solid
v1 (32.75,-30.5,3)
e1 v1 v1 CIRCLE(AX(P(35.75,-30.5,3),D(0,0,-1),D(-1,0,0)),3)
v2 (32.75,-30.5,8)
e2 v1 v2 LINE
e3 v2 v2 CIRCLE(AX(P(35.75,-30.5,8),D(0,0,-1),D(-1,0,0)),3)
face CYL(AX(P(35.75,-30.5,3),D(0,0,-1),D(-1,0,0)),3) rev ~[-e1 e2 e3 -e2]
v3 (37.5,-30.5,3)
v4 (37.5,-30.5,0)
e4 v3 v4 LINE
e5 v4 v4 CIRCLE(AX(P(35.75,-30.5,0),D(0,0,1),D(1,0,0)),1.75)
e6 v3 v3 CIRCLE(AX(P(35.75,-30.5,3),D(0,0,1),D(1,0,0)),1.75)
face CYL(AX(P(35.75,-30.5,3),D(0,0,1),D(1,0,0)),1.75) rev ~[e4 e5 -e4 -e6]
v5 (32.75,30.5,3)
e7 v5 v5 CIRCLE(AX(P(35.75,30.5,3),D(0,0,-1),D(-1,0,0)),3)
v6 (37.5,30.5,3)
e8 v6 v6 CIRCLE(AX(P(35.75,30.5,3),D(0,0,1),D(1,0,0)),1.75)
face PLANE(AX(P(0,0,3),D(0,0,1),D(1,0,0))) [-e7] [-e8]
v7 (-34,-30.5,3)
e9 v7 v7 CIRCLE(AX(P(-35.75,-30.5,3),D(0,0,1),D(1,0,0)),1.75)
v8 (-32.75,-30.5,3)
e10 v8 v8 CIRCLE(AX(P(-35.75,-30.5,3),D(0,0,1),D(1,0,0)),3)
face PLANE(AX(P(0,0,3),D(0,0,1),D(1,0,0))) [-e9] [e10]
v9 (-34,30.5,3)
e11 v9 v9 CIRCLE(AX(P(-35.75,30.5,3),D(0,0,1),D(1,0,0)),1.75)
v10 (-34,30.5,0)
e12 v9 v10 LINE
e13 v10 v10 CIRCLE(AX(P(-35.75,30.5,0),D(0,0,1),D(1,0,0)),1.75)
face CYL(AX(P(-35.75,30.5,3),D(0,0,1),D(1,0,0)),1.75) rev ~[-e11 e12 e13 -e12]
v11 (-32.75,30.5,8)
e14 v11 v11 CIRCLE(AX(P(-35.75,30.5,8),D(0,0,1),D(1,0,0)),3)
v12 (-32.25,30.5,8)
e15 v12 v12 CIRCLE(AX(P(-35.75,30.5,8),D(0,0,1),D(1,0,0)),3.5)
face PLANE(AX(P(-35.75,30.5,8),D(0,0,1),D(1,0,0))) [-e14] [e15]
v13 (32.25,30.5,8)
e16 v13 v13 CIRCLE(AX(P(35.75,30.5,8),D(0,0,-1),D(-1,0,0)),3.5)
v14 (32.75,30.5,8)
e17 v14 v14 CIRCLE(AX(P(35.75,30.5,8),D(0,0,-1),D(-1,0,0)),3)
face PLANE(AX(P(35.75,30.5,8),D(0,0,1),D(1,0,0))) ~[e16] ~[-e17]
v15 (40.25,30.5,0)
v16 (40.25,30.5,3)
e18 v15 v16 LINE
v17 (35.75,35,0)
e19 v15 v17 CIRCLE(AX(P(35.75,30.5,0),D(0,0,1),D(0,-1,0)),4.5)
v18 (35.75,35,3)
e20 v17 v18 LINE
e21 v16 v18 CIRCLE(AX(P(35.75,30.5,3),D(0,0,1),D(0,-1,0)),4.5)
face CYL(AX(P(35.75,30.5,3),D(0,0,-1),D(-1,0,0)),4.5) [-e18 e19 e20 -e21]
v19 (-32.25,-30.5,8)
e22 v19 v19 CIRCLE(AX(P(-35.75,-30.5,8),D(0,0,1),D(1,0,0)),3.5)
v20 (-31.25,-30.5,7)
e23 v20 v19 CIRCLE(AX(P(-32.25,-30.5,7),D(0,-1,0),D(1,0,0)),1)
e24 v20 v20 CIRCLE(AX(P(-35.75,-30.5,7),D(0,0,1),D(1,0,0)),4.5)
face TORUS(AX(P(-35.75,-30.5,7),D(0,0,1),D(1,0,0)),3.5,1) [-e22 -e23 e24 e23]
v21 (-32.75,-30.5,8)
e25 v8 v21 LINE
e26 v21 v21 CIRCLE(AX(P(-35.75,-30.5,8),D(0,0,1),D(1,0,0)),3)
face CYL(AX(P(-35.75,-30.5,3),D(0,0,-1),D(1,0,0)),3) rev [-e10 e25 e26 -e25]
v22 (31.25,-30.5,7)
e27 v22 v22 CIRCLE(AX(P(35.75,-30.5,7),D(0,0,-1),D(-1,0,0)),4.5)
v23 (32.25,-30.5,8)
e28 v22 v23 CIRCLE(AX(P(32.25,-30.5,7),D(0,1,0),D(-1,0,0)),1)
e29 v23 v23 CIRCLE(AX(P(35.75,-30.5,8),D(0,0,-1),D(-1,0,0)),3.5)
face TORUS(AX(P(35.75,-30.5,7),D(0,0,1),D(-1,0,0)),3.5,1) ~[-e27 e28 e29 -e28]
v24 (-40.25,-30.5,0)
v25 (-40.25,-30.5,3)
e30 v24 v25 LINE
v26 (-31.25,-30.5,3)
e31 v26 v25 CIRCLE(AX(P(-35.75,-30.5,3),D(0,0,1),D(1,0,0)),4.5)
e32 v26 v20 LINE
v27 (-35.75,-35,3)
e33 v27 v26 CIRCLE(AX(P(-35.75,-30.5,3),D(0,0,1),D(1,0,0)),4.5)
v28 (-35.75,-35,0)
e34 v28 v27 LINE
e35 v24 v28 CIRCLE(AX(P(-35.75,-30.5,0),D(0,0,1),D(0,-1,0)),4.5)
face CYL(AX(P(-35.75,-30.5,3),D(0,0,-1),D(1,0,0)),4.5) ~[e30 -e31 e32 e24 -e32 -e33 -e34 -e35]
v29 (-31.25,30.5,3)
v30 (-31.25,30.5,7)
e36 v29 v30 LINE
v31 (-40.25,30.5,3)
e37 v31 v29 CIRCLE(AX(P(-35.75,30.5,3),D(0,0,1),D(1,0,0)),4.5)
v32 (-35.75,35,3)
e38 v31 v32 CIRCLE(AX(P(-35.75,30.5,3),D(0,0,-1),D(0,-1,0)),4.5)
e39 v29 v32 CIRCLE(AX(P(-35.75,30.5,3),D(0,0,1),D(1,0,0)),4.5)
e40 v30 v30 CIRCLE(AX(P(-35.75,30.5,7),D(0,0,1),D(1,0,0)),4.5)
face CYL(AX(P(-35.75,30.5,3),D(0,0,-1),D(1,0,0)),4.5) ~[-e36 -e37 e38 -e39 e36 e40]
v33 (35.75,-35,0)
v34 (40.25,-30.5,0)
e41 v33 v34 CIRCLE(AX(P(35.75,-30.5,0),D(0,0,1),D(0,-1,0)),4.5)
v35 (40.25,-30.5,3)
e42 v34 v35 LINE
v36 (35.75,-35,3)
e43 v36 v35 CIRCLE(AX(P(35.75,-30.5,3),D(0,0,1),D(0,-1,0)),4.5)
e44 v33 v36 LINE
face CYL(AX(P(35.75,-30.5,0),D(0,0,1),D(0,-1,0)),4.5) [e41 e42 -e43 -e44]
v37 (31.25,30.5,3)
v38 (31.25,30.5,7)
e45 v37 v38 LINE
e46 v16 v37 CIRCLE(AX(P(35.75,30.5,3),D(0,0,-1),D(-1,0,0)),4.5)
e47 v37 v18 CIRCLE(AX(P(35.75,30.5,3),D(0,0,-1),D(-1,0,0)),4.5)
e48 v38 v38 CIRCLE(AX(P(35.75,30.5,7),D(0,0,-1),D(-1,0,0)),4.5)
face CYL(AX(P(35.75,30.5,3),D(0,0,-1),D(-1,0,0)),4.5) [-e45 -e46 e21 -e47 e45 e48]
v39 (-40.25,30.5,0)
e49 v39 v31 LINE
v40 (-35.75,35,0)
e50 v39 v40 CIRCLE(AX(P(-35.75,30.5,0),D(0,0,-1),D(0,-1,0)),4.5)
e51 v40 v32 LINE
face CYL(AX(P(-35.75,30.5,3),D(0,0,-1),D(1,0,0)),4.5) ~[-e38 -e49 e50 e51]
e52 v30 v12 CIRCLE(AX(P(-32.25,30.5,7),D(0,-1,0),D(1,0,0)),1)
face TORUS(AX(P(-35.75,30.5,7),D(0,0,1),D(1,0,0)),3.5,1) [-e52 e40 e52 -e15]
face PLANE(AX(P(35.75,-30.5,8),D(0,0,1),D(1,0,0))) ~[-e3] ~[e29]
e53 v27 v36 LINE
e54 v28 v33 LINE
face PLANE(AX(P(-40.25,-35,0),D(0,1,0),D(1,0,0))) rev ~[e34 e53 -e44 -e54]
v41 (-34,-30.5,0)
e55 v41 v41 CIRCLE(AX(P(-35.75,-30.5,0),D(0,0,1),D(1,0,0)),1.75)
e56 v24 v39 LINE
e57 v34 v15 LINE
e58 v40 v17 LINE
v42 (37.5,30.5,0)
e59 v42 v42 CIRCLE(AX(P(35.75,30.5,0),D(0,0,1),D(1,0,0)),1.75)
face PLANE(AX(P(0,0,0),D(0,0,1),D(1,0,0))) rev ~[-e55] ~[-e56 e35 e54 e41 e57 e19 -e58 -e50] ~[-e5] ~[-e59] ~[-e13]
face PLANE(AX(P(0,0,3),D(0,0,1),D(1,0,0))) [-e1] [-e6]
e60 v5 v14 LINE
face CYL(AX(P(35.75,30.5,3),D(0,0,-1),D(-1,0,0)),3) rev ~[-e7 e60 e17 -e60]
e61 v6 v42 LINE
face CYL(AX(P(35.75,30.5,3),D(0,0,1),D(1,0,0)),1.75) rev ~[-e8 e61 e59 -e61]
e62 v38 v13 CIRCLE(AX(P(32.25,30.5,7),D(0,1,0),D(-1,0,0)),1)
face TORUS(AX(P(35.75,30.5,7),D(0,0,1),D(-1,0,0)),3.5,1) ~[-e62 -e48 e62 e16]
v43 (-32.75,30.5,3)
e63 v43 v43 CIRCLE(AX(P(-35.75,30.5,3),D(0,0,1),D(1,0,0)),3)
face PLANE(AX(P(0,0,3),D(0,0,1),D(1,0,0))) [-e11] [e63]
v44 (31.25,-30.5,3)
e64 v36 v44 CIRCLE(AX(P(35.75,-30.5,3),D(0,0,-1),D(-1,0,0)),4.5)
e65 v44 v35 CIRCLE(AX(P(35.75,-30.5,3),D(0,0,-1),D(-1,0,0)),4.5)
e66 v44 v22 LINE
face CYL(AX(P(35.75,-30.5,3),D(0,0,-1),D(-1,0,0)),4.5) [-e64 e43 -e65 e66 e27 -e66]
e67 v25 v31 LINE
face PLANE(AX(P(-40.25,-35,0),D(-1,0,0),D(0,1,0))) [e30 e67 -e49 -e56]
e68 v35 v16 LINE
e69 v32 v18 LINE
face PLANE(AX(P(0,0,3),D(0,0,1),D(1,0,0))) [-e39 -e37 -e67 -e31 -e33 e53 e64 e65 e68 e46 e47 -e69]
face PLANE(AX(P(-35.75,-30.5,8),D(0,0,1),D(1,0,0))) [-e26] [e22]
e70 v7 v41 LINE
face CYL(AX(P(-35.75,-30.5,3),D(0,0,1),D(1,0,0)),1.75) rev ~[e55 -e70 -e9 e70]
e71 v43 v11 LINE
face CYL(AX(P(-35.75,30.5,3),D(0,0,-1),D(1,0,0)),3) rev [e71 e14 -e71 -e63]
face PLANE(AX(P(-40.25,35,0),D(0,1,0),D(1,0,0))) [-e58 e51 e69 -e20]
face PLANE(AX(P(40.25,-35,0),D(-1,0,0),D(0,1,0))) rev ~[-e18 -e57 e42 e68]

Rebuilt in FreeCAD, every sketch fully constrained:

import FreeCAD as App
import Part
import Sketcher
from FreeCAD import Vector
Q = App.Units.Quantity


def edges_at(feature, points):
    """Names of the edges that pass closest to the given points."""
    edges = feature.Shape.Edges
    near = lambda p: min(range(len(edges)), key=lambda i: edges[i].distToShape(Part.Vertex(*p))[0])
    return sorted({f"Edge{near(p) + 1}" for p in points})

doc = App.newDocument("Part")
params = doc.addObject("Spreadsheet::Sheet", "Params")
for row, (alias, value) in enumerate([
    ("sketch1_height", "70 mm"),
    ("sketch1_width", "80.5 mm"),
    ("pad1_length", "3 mm"),
    ("fillet_radius", "4.5 mm"),
    ("sketch2_diameter", "3.5 mm"),
    ("sketch3_diameter", "9 mm"),
    ("sketch3_diameter2", "6 mm"),
    ("pad2_length", "5 mm"),
    ("fillet2_radius", "1 mm"),
], start=1):
    params.set(f"A{row}", alias)
    params.set(f"B{row}", "=" + value)
    params.setAlias(f"B{row}", alias)

body = doc.addObject("PartDesign::Body", "Body")

# Sketch on XY plane
sketch1 = doc.addObject("Sketcher::SketchObject", "Sketch")
body.addObject(sketch1)
sketch1.AttachmentSupport = (doc.XY_Plane, [""])
sketch1.MapMode = "FlatFace"
sketch1.addGeometry([
    Part.LineSegment(Vector(-40, 35, 0), Vector(-40, -35, 0)),
    Part.LineSegment(Vector(-40, -35, 0), Vector(40, -35, 0)),
    Part.LineSegment(Vector(40, -35, 0), Vector(40, 35, 0)),
    Part.LineSegment(Vector(40, 35, 0), Vector(-40, 35, 0)),
], False)
sketch1.addConstraint([
    Sketcher.Constraint("Coincident", 0, 2, 1, 1),
    Sketcher.Constraint("Coincident", 1, 2, 2, 1),
    Sketcher.Constraint("Coincident", 2, 2, 3, 1),
    Sketcher.Constraint("Coincident", 3, 2, 0, 1),
    Sketcher.Constraint("Vertical", 0),
    Sketcher.Constraint("Horizontal", 1),
    Sketcher.Constraint("Vertical", 2),
    Sketcher.Constraint("Horizontal", 3),
    Sketcher.Constraint("Symmetric", 0, 2, 2, 2, -1, 1),
    Sketcher.Constraint("DistanceY", 0, 2, 0, 1, Q("70 mm")),
    Sketcher.Constraint("DistanceX", 1, 1, 1, 2, Q("80.5 mm")),
])
sketch1.setExpression("Constraints[9]", "Params.sketch1_height")
sketch1.setExpression("Constraints[10]", "Params.sketch1_width")
pad1 = doc.addObject("PartDesign::Pad", "Pad")
body.addObject(pad1)
pad1.Profile = sketch1
pad1.setExpression("Length", "Params.pad1_length")
doc.recompute()

fillet = doc.addObject("PartDesign::Fillet", "Fillet")
body.addObject(fillet)
fillet.Base = (pad1, edges_at(pad1, [
    (-40.25, -35, 1.5),
    (40.25, -35, 1.5),
    (40.25, 35, 1.5),
    (-40.25, 35, 1.5),
]))
fillet.setExpression("Radius", "Params.fillet_radius")

# Sketch on XY plane
sketch2 = doc.addObject("Sketcher::SketchObject", "Sketch001")
body.addObject(sketch2)
sketch2.AttachmentSupport = (doc.XY_Plane, [""])
sketch2.MapMode = "FlatFace"
sketch2.AttachmentOffset = App.Placement(Vector(0, 0, 3), App.Rotation())
sketch2.addGeometry([
    Part.Circle(Vector(-35.8, -30.5, 0), Vector(0, 0, 1), 1.8),
    Part.Circle(Vector(35.8, -30.5, 0), Vector(0, 0, 1), 1.8),
    Part.Circle(Vector(35.8, 30.5, 0), Vector(0, 0, 1), 1.8),
    Part.Circle(Vector(-35.8, 30.5, 0), Vector(0, 0, 1), 1.8),
], False)
sketch2.addConstraint([
    Sketcher.Constraint("Equal", 0, 1),
    Sketcher.Constraint("Equal", 1, 2),
    Sketcher.Constraint("Equal", 2, 3),
    Sketcher.Constraint("Symmetric", 0, 3, 2, 3, -1, 1),
    Sketcher.Constraint("Symmetric", 1, 3, 3, 3, -1, 1),
    Sketcher.Constraint("Symmetric", 0, 3, 1, 3, -2),
    Sketcher.Constraint("Diameter", 0, Q("3.5 mm")),
    Sketcher.Constraint("DistanceY", 1, 3, 2, 3, Q("61 mm")),
    Sketcher.Constraint("DistanceX", 0, 3, 1, 3, Q("71.5 mm")),
])
sketch2.setExpression("Constraints[6]", "Params.sketch2_diameter")
pocket1 = doc.addObject("PartDesign::Pocket", "Pocket")
body.addObject(pocket1)
pocket1.Profile = sketch2
pocket1.Type = "ThroughAll"

# Sketch on XY plane
sketch3 = doc.addObject("Sketcher::SketchObject", "Sketch002")
body.addObject(sketch3)
sketch3.AttachmentSupport = (doc.XY_Plane, [""])
sketch3.MapMode = "FlatFace"
sketch3.AttachmentOffset = App.Placement(Vector(0, 0, 3), App.Rotation())
sketch3.addGeometry([
    Part.Circle(Vector(-35.8, 30.5, 0), Vector(0, 0, 1), 4.5),
    Part.Circle(Vector(-35.8, 30.5, 0), Vector(0, 0, 1), 3),
    Part.Circle(Vector(-35.8, -30.5, 0), Vector(0, 0, 1), 4.5),
    Part.Circle(Vector(-35.8, -30.5, 0), Vector(0, 0, 1), 3),
], False)
sketch3.addConstraint([
    Sketcher.Constraint("Coincident", 1, 3, 0, 3),
    Sketcher.Constraint("Coincident", 3, 3, 2, 3),
    Sketcher.Constraint("Equal", 0, 2),
    Sketcher.Constraint("Equal", 1, 3),
    Sketcher.Constraint("Symmetric", 0, 3, 2, 3, -1),
    Sketcher.Constraint("Diameter", 0, Q("9 mm")),
    Sketcher.Constraint("Diameter", 1, Q("6 mm")),
    Sketcher.Constraint("DistanceY", 2, 3, 0, 3, Q("61 mm")),
    Sketcher.Constraint("DistanceX", 0, 3, -1, 1, Q("35.75 mm")),
])
sketch3.setExpression("Constraints[5]", "Params.sketch3_diameter")
sketch3.setExpression("Constraints[6]", "Params.sketch3_diameter2")
pad2 = doc.addObject("PartDesign::Pad", "Pad001")
body.addObject(pad2)
pad2.Profile = sketch3
pad2.setExpression("Length", "Params.pad2_length")
doc.recompute()

mirrored = doc.addObject("PartDesign::Mirrored", "Mirrored")
body.addObject(mirrored)
mirrored.Originals = [pad2]
mirrored.MirrorPlane = (doc.YZ_Plane, [""])
body.Tip = mirrored
doc.recompute()

fillet2 = doc.addObject("PartDesign::Fillet", "Fillet001")
body.addObject(fillet2)
fillet2.Base = (mirrored, edges_at(mirrored, [
    (-40.25, -30.5, 8),
    (-40.25, 30.5, 8),
    (40.25, 30.5, 8),
    (40.25, -30.5, 8),
]))
fillet2.setExpression("Radius", "Params.fillet2_radius")

doc.recompute()
